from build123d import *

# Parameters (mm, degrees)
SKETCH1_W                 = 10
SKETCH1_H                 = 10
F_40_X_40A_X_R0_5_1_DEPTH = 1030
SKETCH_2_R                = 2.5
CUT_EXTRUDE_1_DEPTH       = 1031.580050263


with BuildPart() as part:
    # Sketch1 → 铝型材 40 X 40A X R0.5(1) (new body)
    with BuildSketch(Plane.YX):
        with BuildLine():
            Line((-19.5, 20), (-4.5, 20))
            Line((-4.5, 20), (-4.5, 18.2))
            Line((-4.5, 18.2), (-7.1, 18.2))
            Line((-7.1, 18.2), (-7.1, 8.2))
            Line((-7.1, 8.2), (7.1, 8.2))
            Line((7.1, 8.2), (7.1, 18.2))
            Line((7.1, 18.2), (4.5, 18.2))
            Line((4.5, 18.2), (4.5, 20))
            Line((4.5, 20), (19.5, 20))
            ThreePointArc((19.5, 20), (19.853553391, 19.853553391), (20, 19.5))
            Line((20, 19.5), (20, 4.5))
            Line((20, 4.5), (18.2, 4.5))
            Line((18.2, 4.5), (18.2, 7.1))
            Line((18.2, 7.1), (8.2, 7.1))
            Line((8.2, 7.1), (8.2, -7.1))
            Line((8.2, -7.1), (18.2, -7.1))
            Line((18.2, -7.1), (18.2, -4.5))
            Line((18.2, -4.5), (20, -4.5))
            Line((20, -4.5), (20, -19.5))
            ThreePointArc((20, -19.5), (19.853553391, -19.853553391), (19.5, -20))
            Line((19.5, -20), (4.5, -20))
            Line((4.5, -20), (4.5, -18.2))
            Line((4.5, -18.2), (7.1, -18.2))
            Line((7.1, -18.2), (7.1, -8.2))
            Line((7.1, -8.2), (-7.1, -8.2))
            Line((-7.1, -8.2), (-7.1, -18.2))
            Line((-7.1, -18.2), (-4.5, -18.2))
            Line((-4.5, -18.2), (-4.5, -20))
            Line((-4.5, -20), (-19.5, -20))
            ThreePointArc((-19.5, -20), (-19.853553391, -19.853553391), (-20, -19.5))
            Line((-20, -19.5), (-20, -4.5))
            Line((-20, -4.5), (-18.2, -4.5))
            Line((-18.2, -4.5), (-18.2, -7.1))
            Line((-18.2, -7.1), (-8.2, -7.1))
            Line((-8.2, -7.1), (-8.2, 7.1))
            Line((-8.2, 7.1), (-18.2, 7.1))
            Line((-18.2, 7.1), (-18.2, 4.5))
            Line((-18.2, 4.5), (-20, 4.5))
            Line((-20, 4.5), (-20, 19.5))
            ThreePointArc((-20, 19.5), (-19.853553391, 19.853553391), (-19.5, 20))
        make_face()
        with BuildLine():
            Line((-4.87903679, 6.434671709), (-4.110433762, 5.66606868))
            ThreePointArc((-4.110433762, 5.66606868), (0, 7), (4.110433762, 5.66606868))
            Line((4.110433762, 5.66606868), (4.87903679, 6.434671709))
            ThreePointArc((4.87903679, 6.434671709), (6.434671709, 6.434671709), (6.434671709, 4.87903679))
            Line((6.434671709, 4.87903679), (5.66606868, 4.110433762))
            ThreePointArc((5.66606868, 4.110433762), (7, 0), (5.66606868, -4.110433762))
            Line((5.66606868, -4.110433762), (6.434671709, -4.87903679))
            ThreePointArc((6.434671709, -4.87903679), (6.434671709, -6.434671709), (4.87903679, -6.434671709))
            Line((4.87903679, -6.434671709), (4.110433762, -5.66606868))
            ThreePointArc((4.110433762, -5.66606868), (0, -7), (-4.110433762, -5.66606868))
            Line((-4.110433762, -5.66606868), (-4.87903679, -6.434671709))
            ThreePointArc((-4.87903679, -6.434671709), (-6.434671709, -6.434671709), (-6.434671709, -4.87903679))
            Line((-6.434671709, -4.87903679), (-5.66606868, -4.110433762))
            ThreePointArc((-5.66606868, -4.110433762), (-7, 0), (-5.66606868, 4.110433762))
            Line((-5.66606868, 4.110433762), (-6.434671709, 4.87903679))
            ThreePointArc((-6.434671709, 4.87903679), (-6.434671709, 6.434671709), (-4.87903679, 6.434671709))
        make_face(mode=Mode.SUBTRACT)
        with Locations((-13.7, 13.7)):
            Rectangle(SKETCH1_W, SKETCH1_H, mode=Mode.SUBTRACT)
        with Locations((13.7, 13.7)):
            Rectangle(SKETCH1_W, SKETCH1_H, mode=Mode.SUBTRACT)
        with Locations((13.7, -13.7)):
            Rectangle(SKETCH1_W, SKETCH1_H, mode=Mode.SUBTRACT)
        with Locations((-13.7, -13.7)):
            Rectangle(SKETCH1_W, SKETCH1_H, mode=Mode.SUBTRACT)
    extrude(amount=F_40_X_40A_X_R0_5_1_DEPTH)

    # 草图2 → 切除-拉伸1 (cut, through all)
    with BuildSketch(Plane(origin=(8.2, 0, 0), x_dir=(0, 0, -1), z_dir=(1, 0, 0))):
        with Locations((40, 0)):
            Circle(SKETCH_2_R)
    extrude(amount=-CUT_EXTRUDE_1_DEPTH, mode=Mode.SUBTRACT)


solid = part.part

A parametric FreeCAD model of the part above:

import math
import FreeCAD as App
import Part
import Sketcher


def add_polygon(sketch, points):
    """Adds a closed chain of lines whose ends are joined by coincident constraints."""
    first, n = sketch.GeometryCount, len(points)
    for a, b in zip(points, points[1:] + points[:1]):
        sketch.addGeometry(Part.LineSegment(App.Vector(*a, 0), App.Vector(*b, 0)), False)
    for i in range(n):
        sketch.addConstraint(Sketcher.Constraint("Coincident", first + i, 2, first + (i + 1) % n, 1))

doc = App.newDocument("Part")
params = doc.addObject("Spreadsheet::Sheet", "Params")
for row, (alias, value) in enumerate([
    ("sketch1_radius", "7 mm"),
    ("sketch1_radius2", "0.5 mm"),
    ("sketch1_radius3", "1.1 mm"),
    ("sketch1_width", "15 mm"),
    ("sketch1_width2", "10 mm"),
    ("pad1_length", "1030 mm"),
    ("sketch2_diameter", "5 mm"),
], start=1):
    params.set(f"A{row}", alias)
    params.set(f"B{row}", "=" + value)
    params.setAlias(f"B{row}", alias)

body = doc.addObject("PartDesign::Body", "Body")

# Sketch on XY plane
sketch1 = body.newObject("Sketcher::SketchObject", "Sketch")
sketch1.AttachmentSupport = (doc.getObject("XY_Plane"), [""])
sketch1.MapMode = "FlatFace"
sketch1.addGeometry(Part.LineSegment(App.Vector(20, -4.5, 0), App.Vector(20, -19.5, 0)), False)  # 0
sketch1.addGeometry(Part.ArcOfCircle(Part.Circle(App.Vector(19.5, -19.5, 0), App.Vector(0, 0, 1), 0.5), math.radians(-90), math.radians(0)), False)  # 1
sketch1.addGeometry(Part.LineSegment(App.Vector(19.5, -20, 0), App.Vector(4.5, -20, 0)), False)  # 2
sketch1.addGeometry(Part.LineSegment(App.Vector(4.5, -20, 0), App.Vector(4.5, -18.2, 0)), False)  # 3
sketch1.addGeometry(Part.LineSegment(App.Vector(4.5, -18.2, 0), App.Vector(7.1, -18.2, 0)), False)  # 4
sketch1.addGeometry(Part.LineSegment(App.Vector(7.1, -18.2, 0), App.Vector(7.1, -8.2, 0)), False)  # 5
sketch1.addGeometry(Part.LineSegment(App.Vector(7.1, -8.2, 0), App.Vector(-7.1, -8.2, 0)), False)  # 6
sketch1.addGeometry(Part.LineSegment(App.Vector(-7.1, -8.2, 0), App.Vector(-7.1, -18.2, 0)), False)  # 7
sketch1.addGeometry(Part.LineSegment(App.Vector(-7.1, -18.2, 0), App.Vector(-4.5, -18.2, 0)), False)  # 8
sketch1.addGeometry(Part.LineSegment(App.Vector(-4.5, -18.2, 0), App.Vector(-4.5, -20, 0)), False)  # 9
sketch1.addGeometry(Part.LineSegment(App.Vector(-4.5, -20, 0), App.Vector(-19.5, -20, 0)), False)  # 10
sketch1.addGeometry(Part.ArcOfCircle(Part.Circle(App.Vector(-19.5, -19.5, 0), App.Vector(0, 0, 1), 0.5), math.radians(180), math.radians(270)), False)  # 11
sketch1.addGeometry(Part.LineSegment(App.Vector(-20, -19.5, 0), App.Vector(-20, -4.5, 0)), False)  # 12
sketch1.addGeometry(Part.LineSegment(App.Vector(-20, -4.5, 0), App.Vector(-18.2, -4.5, 0)), False)  # 13
sketch1.addGeometry(Part.LineSegment(App.Vector(-18.2, -4.5, 0), App.Vector(-18.2, -7.1, 0)), False)  # 14
sketch1.addGeometry(Part.LineSegment(App.Vector(-18.2, -7.1, 0), App.Vector(-8.2, -7.1, 0)), False)  # 15
sketch1.addGeometry(Part.LineSegment(App.Vector(-8.2, -7.1, 0), App.Vector(-8.2, 7.1, 0)), False)  # 16
sketch1.addGeometry(Part.LineSegment(App.Vector(-8.2, 7.1, 0), App.Vector(-18.2, 7.1, 0)), False)  # 17
sketch1.addGeometry(Part.LineSegment(App.Vector(-18.2, 7.1, 0), App.Vector(-18.2, 4.5, 0)), False)  # 18
sketch1.addGeometry(Part.LineSegment(App.Vector(-18.2, 4.5, 0), App.Vector(-20, 4.5, 0)), False)  # 19
sketch1.addGeometry(Part.LineSegment(App.Vector(-20, 4.5, 0), App.Vector(-20, 19.5, 0)), False)  # 20
sketch1.addGeometry(Part.ArcOfCircle(Part.Circle(App.Vector(-19.5, 19.5, 0), App.Vector(0, 0, 1), 0.5), math.radians(90), math.radians(180)), False)  # 21
sketch1.addGeometry(Part.LineSegment(App.Vector(-19.5, 20, 0), App.Vector(-4.5, 20, 0)), False)  # 22
sketch1.addGeometry(Part.LineSegment(App.Vector(-4.5, 20, 0), App.Vector(-4.5, 18.2, 0)), False)  # 23
sketch1.addGeometry(Part.LineSegment(App.Vector(-4.5, 18.2, 0), App.Vector(-7.1, 18.2, 0)), False)  # 24
sketch1.addGeometry(Part.LineSegment(App.Vector(-7.1, 18.2, 0), App.Vector(-7.1, 8.2, 0)), False)  # 25
sketch1.addGeometry(Part.LineSegment(App.Vector(-7.1, 8.2, 0), App.Vector(7.1, 8.2, 0)), False)  # 26
sketch1.addGeometry(Part.LineSegment(App.Vector(7.1, 8.2, 0), App.Vector(7.1, 18.2, 0)), False)  # 27
sketch1.addGeometry(Part.LineSegment(App.Vector(7.1, 18.2, 0), App.Vector(4.5, 18.2, 0)), False)  # 28
sketch1.addGeometry(Part.LineSegment(App.Vector(4.5, 18.2, 0), App.Vector(4.5, 20, 0)), False)  # 29
sketch1.addGeometry(Part.LineSegment(App.Vector(4.5, 20, 0), App.Vector(19.5, 20, 0)), False)  # 30
sketch1.addGeometry(Part.ArcOfCircle(Part.Circle(App.Vector(19.5, 19.5, 0), App.Vector(0, 0, 1), 0.5), math.radians(0), math.radians(90)), False)  # 31
sketch1.addGeometry(Part.LineSegment(App.Vector(20, 19.5, 0), App.Vector(20, 4.5, 0)), False)  # 32
sketch1.addGeometry(Part.LineSegment(App.Vector(20, 4.5, 0), App.Vector(18.2, 4.5, 0)), False)  # 33
sketch1.addGeometry(Part.LineSegment(App.Vector(18.2, 4.5, 0), App.Vector(18.2, 7.1, 0)), False)  # 34
sketch1.addGeometry(Part.LineSegment(App.Vector(18.2, 7.1, 0), App.Vector(8.2, 7.1, 0)), False)  # 35
sketch1.addGeometry(Part.LineSegment(App.Vector(8.2, 7.1, 0), App.Vector(8.2, -7.1, 0)), False)  # 36
sketch1.addGeometry(Part.LineSegment(App.Vector(8.2, -7.1, 0), App.Vector(18.2, -7.1, 0)), False)  # 37
sketch1.addGeometry(Part.LineSegment(App.Vector(18.2, -7.1, 0), App.Vector(18.2, -4.5, 0)), False)  # 38
sketch1.addGeometry(Part.LineSegment(App.Vector(18.2, -4.5, 0), App.Vector(20, -4.5, 0)), False)  # 39
add_polygon(sketch1, [(-18.7, 8.7), (-8.7, 8.7), (-8.7, 18.7), (-18.7, 18.7)])  # lines 40-43
sketch1.addGeometry(Part.LineSegment(App.Vector(6.43, -4.88, 0), App.Vector(5.67, -4.11, 0)), False)  # 44
sketch1.addGeometry(Part.ArcOfCircle(Part.Circle(App.Vector(0, 0, 0), App.Vector(0, 0, 1), 7), math.radians(-36), math.radians(36)), False)  # 45
sketch1.addGeometry(Part.LineSegment(App.Vector(5.67, 4.11, 0), App.Vector(6.43, 4.88, 0)), False)  # 46
sketch1.addGeometry(Part.ArcOfCircle(Part.Circle(App.Vector(5.66, 5.66, 0), App.Vector(0, 0, 1), 1.1), math.radians(-45), math.radians(135)), False)  # 47
sketch1.addGeometry(Part.LineSegment(App.Vector(4.88, 6.43, 0), App.Vector(4.11, 5.67, 0)), False)  # 48
sketch1.addGeometry(Part.ArcOfCircle(Part.Circle(App.Vector(0, 0, 0), App.Vector(0, 0, 1), 7), math.radians(54), math.radians(126)), False)  # 49
sketch1.addGeometry(Part.LineSegment(App.Vector(-4.11, 5.67, 0), App.Vector(-4.88, 6.43, 0)), False)  # 50
sketch1.addGeometry(Part.ArcOfCircle(Part.Circle(App.Vector(-5.66, 5.66, 0), App.Vector(0, 0, 1), 1.1), math.radians(45), math.radians(225)), False)  # 51
sketch1.addGeometry(Part.LineSegment(App.Vector(-6.43, 4.88, 0), App.Vector(-5.67, 4.11, 0)), False)  # 52
sketch1.addGeometry(Part.ArcOfCircle(Part.Circle(App.Vector(0, 0, 0), App.Vector(0, 0, 1), 7), math.radians(144), math.radians(216)), False)  # 53
sketch1.addGeometry(Part.LineSegment(App.Vector(-5.67, -4.11, 0), App.Vector(-6.43, -4.88, 0)), False)  # 54
sketch1.addGeometry(Part.ArcOfCircle(Part.Circle(App.Vector(-5.66, -5.66, 0), App.Vector(0, 0, 1), 1.1), math.radians(135), math.radians(315)), False)  # 55
sketch1.addGeometry(Part.LineSegment(App.Vector(-4.88, -6.43, 0), App.Vector(-4.11, -5.67, 0)), False)  # 56
sketch1.addGeometry(Part.ArcOfCircle(Part.Circle(App.Vector(0, 0, 0), App.Vector(0, 0, 1), 7), math.radians(-126), math.radians(-54)), False)  # 57
sketch1.addGeometry(Part.LineSegment(App.Vector(4.11, -5.67, 0), App.Vector(4.88, -6.43, 0)), False)  # 58
sketch1.addGeometry(Part.ArcOfCircle(Part.Circle(App.Vector(5.66, -5.66, 0), App.Vector(0, 0, 1), 1.1), math.radians(-135), math.radians(45)), False)  # 59
add_polygon(sketch1, [(-18.7, -18.7), (-8.7, -18.7), (-8.7, -8.7), (-18.7, -8.7)])  # lines 60-63
add_polygon(sketch1, [(8.7, 8.7), (18.7, 8.7), (18.7, 18.7), (8.7, 18.7)])  # lines 64-67
add_polygon(sketch1, [(8.7, -18.7), (18.7, -18.7), (18.7, -8.7), (8.7, -8.7)])  # lines 68-71
sketch1.addConstraint(Sketcher.Constraint("Tangent", 0, 2, 1, 2))
sketch1.addConstraint(Sketcher.Constraint("Tangent", 1, 1, 2, 1))
sketch1.addConstraint(Sketcher.Constraint("Coincident", 2, 2, 3, 1))
sketch1.addConstraint(Sketcher.Constraint("Coincident", 3, 2, 4, 1))
sketch1.addConstraint(Sketcher.Constraint("Coincident", 4, 2, 5, 1))
sketch1.addConstraint(Sketcher.Constraint("Coincident", 5, 2, 6, 1))
sketch1.addConstraint(Sketcher.Constraint("Coincident", 6, 2, 7, 1))
sketch1.addConstraint(Sketcher.Constraint("Coincident", 7, 2, 8, 1))
sketch1.addConstraint(Sketcher.Constraint("Coincident", 8, 2, 9, 1))
sketch1.addConstraint(Sketcher.Constraint("Coincident", 9, 2, 10, 1))
sketch1.addConstraint(Sketcher.Constraint("Tangent", 10, 2, 11, 2))
sketch1.addConstraint(Sketcher.Constraint("Tangent", 11, 1, 12, 1))
sketch1.addConstraint(Sketcher.Constraint("Coincident", 12, 2, 13, 1))
sketch1.addConstraint(Sketcher.Constraint("Coincident", 13, 2, 14, 1))
sketch1.addConstraint(Sketcher.Constraint("Coincident", 14, 2, 15, 1))
sketch1.addConstraint(Sketcher.Constraint("Coincident", 15, 2, 16, 1))
sketch1.addConstraint(Sketcher.Constraint("Coincident", 16, 2, 17, 1))
sketch1.addConstraint(Sketcher.Constraint("Coincident", 17, 2, 18, 1))
sketch1.addConstraint(Sketcher.Constraint("Coincident", 18, 2, 19, 1))
sketch1.addConstraint(Sketcher.Constraint("Coincident", 19, 2, 20, 1))
sketch1.addConstraint(Sketcher.Constraint("Tangent", 20, 2, 21, 2))
sketch1.addConstraint(Sketcher.Constraint("Tangent", 21, 1, 22, 1))
sketch1.addConstraint(Sketcher.Constraint("Coincident", 22, 2, 23, 1))
sketch1.addConstraint(Sketcher.Constraint("Coincident", 23, 2, 24, 1))
sketch1.addConstraint(Sketcher.Constraint("Coincident", 24, 2, 25, 1))
sketch1.addConstraint(Sketcher.Constraint("Coincident", 25, 2, 26, 1))
sketch1.addConstraint(Sketcher.Constraint("Coincident", 26, 2, 27, 1))
sketch1.addConstraint(Sketcher.Constraint("Coincident", 27, 2, 28, 1))
sketch1.addConstraint(Sketcher.Constraint("Coincident", 28, 2, 29, 1))
sketch1.addConstraint(Sketcher.Constraint("Coincident", 29, 2, 30, 1))
sketch1.addConstraint(Sketcher.Constraint("Tangent", 30, 2, 31, 2))
sketch1.addConstraint(Sketcher.Constraint("Tangent", 31, 1, 32, 1))
sketch1.addConstraint(Sketcher.Constraint("Coincident", 32, 2, 33, 1))
sketch1.addConstraint(Sketcher.Constraint("Coincident", 33, 2, 34, 1))
sketch1.addConstraint(Sketcher.Constraint("Coincident", 34, 2, 35, 1))
sketch1.addConstraint(Sketcher.Constraint("Coincident", 35, 2, 36, 1))
sketch1.addConstraint(Sketcher.Constraint("Coincident", 36, 2, 37, 1))
sketch1.addConstraint(Sketcher.Constraint("Coincident", 37, 2, 38, 1))
sketch1.addConstraint(Sketcher.Constraint("Coincident", 38, 2, 39, 1))
sketch1.addConstraint(Sketcher.Constraint("Coincident", 39, 2, 0, 1))
sketch1.addConstraint(Sketcher.Constraint("Coincident", 44, 2, 45, 1))
sketch1.addConstraint(Sketcher.Constraint("Coincident", 45, 2, 46, 1))
sketch1.addConstraint(Sketcher.Constraint("Tangent", 46, 2, 47, 1))
sketch1.addConstraint(Sketcher.Constraint("Tangent", 47, 2, 48, 1))
sketch1.addConstraint(Sketcher.Constraint("Coincident", 48, 2, 49, 1))
sketch1.addConstraint(Sketcher.Constraint("Coincident", 49, 2, 50, 1))
sketch1.addConstraint(Sketcher.Constraint("Tangent", 50, 2, 51, 1))
sketch1.addConstraint(Sketcher.Constraint("Tangent", 51, 2, 52, 1))
sketch1.addConstraint(Sketcher.Constraint("Coincident", 52, 2, 53, 1))
sketch1.addConstraint(Sketcher.Constraint("Coincident", 53, 2, 54, 1))
sketch1.addConstraint(Sketcher.Constraint("Tangent", 54, 2, 55, 1))
sketch1.addConstraint(Sketcher.Constraint("Tangent", 55, 2, 56, 1))
sketch1.addConstraint(Sketcher.Constraint("Coincident", 56, 2, 57, 1))
sketch1.addConstraint(Sketcher.Constraint("Coincident", 57, 2, 58, 1))
sketch1.addConstraint(Sketcher.Constraint("Tangent", 58, 2, 59, 1))
sketch1.addConstraint(Sketcher.Constraint("Tangent", 59, 2, 44, 1))
sketch1.addConstraint(Sketcher.Constraint("Vertical", 0))
sketch1.addConstraint(Sketcher.Constraint("Horizontal", 2))
sketch1.addConstraint(Sketcher.Constraint("Vertical", 3))
sketch1.addConstraint(Sketcher.Constraint("Horizontal", 4))
sketch1.addConstraint(Sketcher.Constraint("Vertical", 5))
sketch1.addConstraint(Sketcher.Constraint("Horizontal", 6))
sketch1.addConstraint(Sketcher.Constraint("Vertical", 7))
sketch1.addConstraint(Sketcher.Constraint("Horizontal", 8))
sketch1.addConstraint(Sketcher.Constraint("Vertical", 9))
sketch1.addConstraint(Sketcher.Constraint("Horizontal", 10))
sketch1.addConstraint(Sketcher.Constraint("Vertical", 12))
sketch1.addConstraint(Sketcher.Constraint("Horizontal", 13))
sketch1.addConstraint(Sketcher.Constraint("Vertical", 14))
sketch1.addConstraint(Sketcher.Constraint("Horizontal", 15))
sketch1.addConstraint(Sketcher.Constraint("Vertical", 16))
sketch1.addConstraint(Sketcher.Constraint("Horizontal", 17))
sketch1.addConstraint(Sketcher.Constraint("Vertical", 18))
sketch1.addConstraint(Sketcher.Constraint("Horizontal", 19))
sketch1.addConstraint(Sketcher.Constraint("Vertical", 20))
sketch1.addConstraint(Sketcher.Constraint("Horizontal", 22))
sketch1.addConstraint(Sketcher.Constraint("Vertical", 23))
sketch1.addConstraint(Sketcher.Constraint("Horizontal", 24))
sketch1.addConstraint(Sketcher.Constraint("Vertical", 25))
sketch1.addConstraint(Sketcher.Constraint("Horizontal", 26))
sketch1.addConstraint(Sketcher.Constraint("Vertical", 27))
sketch1.addConstraint(Sketcher.Constraint("Horizontal", 28))
sketch1.addConstraint(Sketcher.Constraint("Vertical", 29))
sketch1.addConstraint(Sketcher.Constraint("Horizontal", 30))
sketch1.addConstraint(Sketcher.Constraint("Vertical", 32))
sketch1.addConstraint(Sketcher.Constraint("Horizontal", 33))
sketch1.addConstraint(Sketcher.Constraint("Vertical", 34))
sketch1.addConstraint(Sketcher.Constraint("Horizontal", 35))
sketch1.addConstraint(Sketcher.Constraint("Vertical", 36))
sketch1.addConstraint(Sketcher.Constraint("Horizontal", 37))
sketch1.addConstraint(Sketcher.Constraint("Vertical", 38))
sketch1.addConstraint(Sketcher.Constraint("Horizontal", 39))
sketch1.addConstraint(Sketcher.Constraint("Horizontal", 40))
sketch1.addConstraint(Sketcher.Constraint("Vertical", 41))
sketch1.addConstraint(Sketcher.Constraint("Horizontal", 42))
sketch1.addConstraint(Sketcher.Constraint("Vertical", 43))
sketch1.addConstraint(Sketcher.Constraint("Horizontal", 60))
sketch1.addConstraint(Sketcher.Constraint("Vertical", 61))
sketch1.addConstraint(Sketcher.Constraint("Horizontal", 62))
sketch1.addConstraint(Sketcher.Constraint("Vertical", 63))
sketch1.addConstraint(Sketcher.Constraint("Horizontal", 64))
sketch1.addConstraint(Sketcher.Constraint("Vertical", 65))
sketch1.addConstraint(Sketcher.Constraint("Horizontal", 66))
sketch1.addConstraint(Sketcher.Constraint("Vertical", 67))
sketch1.addConstraint(Sketcher.Constraint("Horizontal", 68))
sketch1.addConstraint(Sketcher.Constraint("Vertical", 69))
sketch1.addConstraint(Sketcher.Constraint("Horizontal", 70))
sketch1.addConstraint(Sketcher.Constraint("Vertical", 71))
sketch1.addConstraint(Sketcher.Constraint("Coincident", 45, 3, -1, 1))
sketch1.addConstraint(Sketcher.Constraint("Coincident", 49, 3, -1, 1))
sketch1.addConstraint(Sketcher.Constraint("Coincident", 53, 3, -1, 1))
sketch1.addConstraint(Sketcher.Constraint("Coincident", 57, 3, -1, 1))
sketch1.addConstraint(Sketcher.Constraint("Equal", 1, 11))
sketch1.addConstraint(Sketcher.Constraint("Equal", 11, 21))
sketch1.addConstraint(Sketcher.Constraint("Equal", 21, 31))
sketch1.addConstraint(Sketcher.Constraint("Equal", 45, 49))
sketch1.addConstraint(Sketcher.Constraint("Equal", 47, 51))
sketch1.addConstraint(Sketcher.Constraint("Equal", 49, 53))
sketch1.addConstraint(Sketcher.Constraint("Equal", 51, 55))
sketch1.addConstraint(Sketcher.Constraint("Equal", 53, 57))
sketch1.addConstraint(Sketcher.Constraint("Equal", 55, 59))
sketch1.addConstraint(Sketcher.Constraint("Symmetric", 1, 3, 21, 3, -1, 1))
sketch1.addConstraint(Sketcher.Constraint("Symmetric", 11, 3, 31, 3, -1, 1))
sketch1.addConstraint(Sketcher.Constraint("Symmetric", 47, 3, 55, 3, -1, 1))
sketch1.addConstraint(Sketcher.Constraint("Symmetric", 51, 3, 59, 3, -1, 1))
sketch1.addConstraint(Sketcher.Constraint("Symmetric", 3, 2, 23, 2, -1, 1))
sketch1.addConstraint(Sketcher.Constraint("Symmetric", 5, 2, 25, 2, -1, 1))
sketch1.addConstraint(Sketcher.Constraint("Symmetric", 7, 2, 27, 2, -1, 1))
sketch1.addConstraint(Sketcher.Constraint("Symmetric", 13, 2, 33, 2, -1, 1))
sketch1.addConstraint(Sketcher.Constraint("Symmetric", 15, 2, 35, 2, -1, 1))
sketch1.addConstraint(Sketcher.Constraint("Symmetric", 17, 2, 37, 2, -1, 1))
sketch1.addConstraint(Sketcher.Constraint("Symmetric", 62, 2, 64, 2, -1, 1))
sketch1.addConstraint(Sketcher.Constraint("Symmetric", 60, 2, 66, 2, -1, 1))
sketch1.addConstraint(Sketcher.Constraint("Symmetric", 42, 2, 68, 2, -1, 1))
sketch1.addConstraint(Sketcher.Constraint("Symmetric", 40, 2, 70, 2, -1, 1))
sketch1.addConstraint(Sketcher.Constraint("Symmetric", 1, 3, 11, 3, -2))
sketch1.addConstraint(Sketcher.Constraint("Symmetric", 47, 3, 51, 3, -2))
sketch1.addConstraint(Sketcher.Constraint("Symmetric", 4, 2, 7, 2, -2))
sketch1.addConstraint(Sketcher.Constraint("Symmetric", 18, 2, 33, 2, -2))
sketch1.addConstraint(Sketcher.Constraint("Symmetric", 43, 2, 64, 2, -2))
sketch1.addConstraint(Sketcher.Constraint("Symmetric", 41, 2, 66, 2, -2))
sketch1.addConstraint(Sketcher.Constraint("Perpendicular", 44, 46))
sketch1.addConstraint(Sketcher.Constraint("Parallel", 46, 48))
sketch1.addConstraint(Sketcher.Constraint("Perpendicular", 48, 50))
sketch1.addConstraint(Sketcher.Constraint("Parallel", 50, 52))
sketch1.addConstraint(Sketcher.Constraint("Perpendicular", 52, 54))
sketch1.addConstraint(Sketcher.Constraint("Parallel", 54, 56))
sketch1.addConstraint(Sketcher.Constraint("Perpendicular", 56, 58))
sketch1.addConstraint(Sketcher.Constraint("Horizontal", 17, 2, 34, 2))
sketch1.addConstraint(Sketcher.Constraint("Horizontal", 13, 2, 38, 2))
sketch1.addConstraint(Sketcher.Constraint("Horizontal", 48, 2, 49, 2))
sketch1.addConstraint(Sketcher.Constraint("Vertical", 9, 2, 22, 2))
sketch1.addConstraint(Sketcher.Constraint("Vertical", 3, 2, 28, 2))
sketch1.addConstraint(Sketcher.Constraint("Equal", 37, 40))
sketch1.addConstraint(Sketcher.Constraint("Equal", 30, 0))
sketch1.addConstraint(Sketcher.Constraint("Equal", 39, 3))
sketch1.addConstraint(Sketcher.Constraint("Equal", 70, 5))
sketch1.addConstraint(Sketcher.Constraint("Equal", 28, 14))
sketch1.addConstraint(Sketcher.Constraint("Equal", 26, 16))
sketch1.addConstraint(Sketcher.Constraint("Equal", 27, 41))
sketch1.addConstraint(Sketcher.Constraint("Equal", 46, 48))
sketch1.addConstraint(Sketcher.Constraint("Radius", 45, 7.0))
sketch1.addConstraint(Sketcher.Constraint("Radius", 1, 0.5))
sketch1.addConstraint(Sketcher.Constraint("Radius", 47, 1.1))
sketch1.addConstraint(Sketcher.Constraint("DistanceX", 2, 2, 2, 1, 15.0))
sketch1.addConstraint(Sketcher.Constraint("DistanceX", 15, 1, 15, 2, 10.0))
sketch1.addConstraint(Sketcher.Constraint("DistanceX", 4, 1, 4, 2, 2.6))
sketch1.addConstraint(Sketcher.Constraint("DistanceX", 6, 2, 6, 1, 14.2))
sketch1.addConstraint(Sketcher.Constraint("DistanceX", 13, 1, 13, 2, 1.8))
sketch1.addConstraint(Sketcher.Constraint("DistanceX", 40, 2, -1, 1, 8.7))
sketch1.addConstraint(Sketcher.Constraint("DistanceY", -1, 1, 40, 2, 8.7))
sketch1.addConstraint(Sketcher.Constraint("Distance", 44, 1.086969))
sketch1.setExpression("Constraints[177]", "Params.sketch1_radius")
sketch1.setExpression("Constraints[178]", "Params.sketch1_radius2")
sketch1.setExpression("Constraints[179]", "Params.sketch1_radius3")
sketch1.setExpression("Constraints[180]", "Params.sketch1_width")
sketch1.setExpression("Constraints[181]", "Params.sketch1_width2")
pad1 = body.newObject("PartDesign::Pad", "Pad")
pad1.Profile = sketch1
pad1.setExpression("Length", "Params.pad1_length")
pad1.Reversed = True

# Sketch on YZ plane
sketch2 = body.newObject("Sketcher::SketchObject", "Sketch001")
sketch2.AttachmentSupport = (doc.getObject("YZ_Plane"), [""])
sketch2.MapMode = "FlatFace"
sketch2.AttachmentOffset = App.Placement(App.Vector(0, 0, 8.2), App.Rotation())
sketch2.addGeometry(Part.Circle(App.Vector(0, -40, 0), App.Vector(0, 0, 1), 2.5), False)
sketch2.addConstraint(Sketcher.Constraint("PointOnObject", 0, 3, -2))
sketch2.addConstraint(Sketcher.Constraint("Diameter", 0, 5.0))
sketch2.addConstraint(Sketcher.Constraint("DistanceY", 0, 3, -1, 1, 40.0))
sketch2.setExpression("Constraints[1]", "Params.sketch2_diameter")
pocket1 = body.newObject("PartDesign::Pocket", "Pocket")
pocket1.Profile = sketch2
pocket1.Type = "ThroughAll"

doc.recompute()
